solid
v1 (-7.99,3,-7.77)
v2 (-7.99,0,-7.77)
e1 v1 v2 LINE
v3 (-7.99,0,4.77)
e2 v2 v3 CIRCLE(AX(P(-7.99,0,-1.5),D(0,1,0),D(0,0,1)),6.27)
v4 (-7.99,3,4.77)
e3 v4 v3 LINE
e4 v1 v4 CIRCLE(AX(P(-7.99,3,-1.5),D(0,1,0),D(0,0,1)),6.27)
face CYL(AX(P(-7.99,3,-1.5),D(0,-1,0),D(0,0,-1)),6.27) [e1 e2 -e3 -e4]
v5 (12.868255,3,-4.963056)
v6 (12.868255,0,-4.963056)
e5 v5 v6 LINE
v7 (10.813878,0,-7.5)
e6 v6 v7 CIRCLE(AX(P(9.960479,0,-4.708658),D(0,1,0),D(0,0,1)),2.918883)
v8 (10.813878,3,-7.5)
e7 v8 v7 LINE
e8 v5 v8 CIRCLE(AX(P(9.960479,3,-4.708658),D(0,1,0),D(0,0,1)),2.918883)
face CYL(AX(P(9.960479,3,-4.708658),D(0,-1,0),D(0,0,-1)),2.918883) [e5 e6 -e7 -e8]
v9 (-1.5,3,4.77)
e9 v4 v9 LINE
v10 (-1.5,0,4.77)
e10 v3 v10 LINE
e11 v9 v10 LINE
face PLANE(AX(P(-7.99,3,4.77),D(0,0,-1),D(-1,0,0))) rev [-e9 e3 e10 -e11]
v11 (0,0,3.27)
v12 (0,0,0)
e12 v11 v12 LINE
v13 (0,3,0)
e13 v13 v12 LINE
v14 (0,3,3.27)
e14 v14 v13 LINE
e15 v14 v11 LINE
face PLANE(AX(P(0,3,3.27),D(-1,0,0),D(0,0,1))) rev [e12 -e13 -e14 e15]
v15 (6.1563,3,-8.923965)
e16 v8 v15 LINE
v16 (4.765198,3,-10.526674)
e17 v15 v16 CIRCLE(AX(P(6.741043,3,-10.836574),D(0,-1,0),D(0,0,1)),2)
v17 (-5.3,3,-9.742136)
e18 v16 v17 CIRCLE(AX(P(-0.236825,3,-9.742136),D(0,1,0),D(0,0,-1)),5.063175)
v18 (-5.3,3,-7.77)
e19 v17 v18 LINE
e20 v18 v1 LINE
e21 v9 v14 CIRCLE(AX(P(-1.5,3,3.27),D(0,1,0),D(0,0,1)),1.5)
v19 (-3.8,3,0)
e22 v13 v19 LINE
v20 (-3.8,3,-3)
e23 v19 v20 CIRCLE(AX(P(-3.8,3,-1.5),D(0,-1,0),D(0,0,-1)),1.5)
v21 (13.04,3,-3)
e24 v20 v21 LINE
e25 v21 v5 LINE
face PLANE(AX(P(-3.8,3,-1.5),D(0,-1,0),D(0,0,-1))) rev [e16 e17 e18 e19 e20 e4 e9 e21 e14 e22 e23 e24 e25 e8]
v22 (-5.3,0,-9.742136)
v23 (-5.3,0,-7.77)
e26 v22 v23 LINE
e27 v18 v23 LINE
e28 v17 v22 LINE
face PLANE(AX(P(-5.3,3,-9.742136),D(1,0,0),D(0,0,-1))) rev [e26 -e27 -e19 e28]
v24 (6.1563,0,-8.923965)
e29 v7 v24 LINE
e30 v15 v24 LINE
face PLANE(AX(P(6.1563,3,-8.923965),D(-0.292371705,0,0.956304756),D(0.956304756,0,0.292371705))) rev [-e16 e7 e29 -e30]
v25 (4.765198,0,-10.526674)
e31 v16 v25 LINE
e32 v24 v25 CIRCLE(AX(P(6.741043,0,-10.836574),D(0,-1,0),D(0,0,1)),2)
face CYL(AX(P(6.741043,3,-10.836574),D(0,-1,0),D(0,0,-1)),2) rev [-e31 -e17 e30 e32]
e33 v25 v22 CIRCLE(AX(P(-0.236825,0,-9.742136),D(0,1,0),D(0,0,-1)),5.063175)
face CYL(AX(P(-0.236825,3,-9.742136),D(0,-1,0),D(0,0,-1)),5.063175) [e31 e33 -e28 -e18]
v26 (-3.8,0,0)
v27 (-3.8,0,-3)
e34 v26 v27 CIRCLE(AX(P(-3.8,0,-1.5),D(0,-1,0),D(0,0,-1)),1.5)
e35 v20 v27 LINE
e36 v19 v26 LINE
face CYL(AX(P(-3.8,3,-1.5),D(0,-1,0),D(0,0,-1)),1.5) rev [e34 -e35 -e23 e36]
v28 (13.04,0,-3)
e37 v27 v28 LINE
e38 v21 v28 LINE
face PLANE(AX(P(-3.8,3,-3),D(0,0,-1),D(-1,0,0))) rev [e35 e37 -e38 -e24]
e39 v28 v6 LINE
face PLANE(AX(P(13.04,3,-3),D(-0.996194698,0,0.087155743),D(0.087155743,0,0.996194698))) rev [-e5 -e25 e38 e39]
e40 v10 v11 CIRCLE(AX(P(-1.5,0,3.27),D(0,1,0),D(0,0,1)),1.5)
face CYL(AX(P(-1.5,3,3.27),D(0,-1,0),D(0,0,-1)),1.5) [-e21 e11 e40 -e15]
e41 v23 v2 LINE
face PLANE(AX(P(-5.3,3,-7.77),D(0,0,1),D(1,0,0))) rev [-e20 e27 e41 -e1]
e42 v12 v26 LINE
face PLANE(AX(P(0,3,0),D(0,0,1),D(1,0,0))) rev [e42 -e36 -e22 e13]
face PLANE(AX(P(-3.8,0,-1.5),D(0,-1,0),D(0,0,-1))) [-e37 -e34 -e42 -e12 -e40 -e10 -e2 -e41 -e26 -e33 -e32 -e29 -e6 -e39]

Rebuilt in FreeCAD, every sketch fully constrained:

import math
import FreeCAD as App
import Part
import Sketcher
Q = App.Units.Quantity

doc = App.newDocument("Part")
body = doc.addObject("PartDesign::Body", "Body")

sketch1 = body.newObject("Sketcher::SketchObject", "Sketch")
sketch1.AttachmentSupport = (doc.getObject("XZ_Plane"), [""])
sketch1.MapMode = "FlatFace"
sketch1.addGeometry(Part.LineSegment(App.Vector(0, 0, 0), App.Vector(-3.8, 0, 0)), False)
sketch1.addGeometry(Part.ArcOfCircle(Part.Circle(App.Vector(-3.8, -1.5, 0), App.Vector(0, 0, 1), 1.5), math.radians(90), math.radians(270)), False)
sketch1.addGeometry(Part.LineSegment(App.Vector(-3.8, -3, 0), App.Vector(13.04, -3, 0)), False)
sketch1.addGeometry(Part.LineSegment(App.Vector(13.04, -3, 0), App.Vector(12.868255, -4.963056, 0)), False)
sketch1.addGeometry(Part.ArcOfCircle(Part.Circle(App.Vector(9.960479, -4.708658, 0), App.Vector(0, 0, 1), 2.918883), math.radians(-73), math.radians(-5)), False)
sketch1.addGeometry(Part.LineSegment(App.Vector(10.813878, -7.5, 0), App.Vector(6.1563, -8.923965, 0)), False)
sketch1.addGeometry(Part.ArcOfCircle(Part.Circle(App.Vector(6.741043, -10.836574, 0), App.Vector(0, 0, 1), 2), math.radians(107), math.radians(171.086112)), False)
sketch1.addGeometry(Part.ArcOfCircle(Part.Circle(App.Vector(-0.236825, -9.742136, 0), App.Vector(0, 0, 1), 5.063175), math.radians(180), math.radians(351.086112)), False)
sketch1.addGeometry(Part.LineSegment(App.Vector(-5.3, -9.742136, 0), App.Vector(-5.3, -7.77, 0)), False)
sketch1.addGeometry(Part.LineSegment(App.Vector(-5.3, -7.77, 0), App.Vector(-7.99, -7.77, 0)), False)
sketch1.addGeometry(Part.ArcOfCircle(Part.Circle(App.Vector(-7.99, -1.5, 0), App.Vector(0, 0, 1), 6.27), math.radians(90), math.radians(270)), False)
sketch1.addGeometry(Part.LineSegment(App.Vector(-7.99, 4.77, 0), App.Vector(-1.5, 4.77, 0)), False)
sketch1.addGeometry(Part.ArcOfCircle(Part.Circle(App.Vector(-1.5, 3.27, 0), App.Vector(0, 0, 1), 1.5), math.radians(0), math.radians(90)), False)
sketch1.addGeometry(Part.LineSegment(App.Vector(0, 3.27, 0), App.Vector(0, 0, 0)), False)
sketch1.addConstraint(Sketcher.Constraint("Tangent", 0, 2, 1, 1))
sketch1.addConstraint(Sketcher.Constraint("Tangent", 1, 2, 2, 1))
sketch1.addConstraint(Sketcher.Constraint("Coincident", 2, 2, 3, 1))
sketch1.addConstraint(Sketcher.Constraint("Tangent", 3, 2, 4, 2))
sketch1.addConstraint(Sketcher.Constraint("Tangent", 4, 1, 5, 1))
sketch1.addConstraint(Sketcher.Constraint("Tangent", 5, 2, 6, 1))
sketch1.addConstraint(Sketcher.Constraint("Tangent", 6, 2, 7, 2))
sketch1.addConstraint(Sketcher.Constraint("Tangent", 7, 1, 8, 1))
sketch1.addConstraint(Sketcher.Constraint("Coincident", 8, 2, 9, 1))
sketch1.addConstraint(Sketcher.Constraint("Tangent", 9, 2, 10, 2))
sketch1.addConstraint(Sketcher.Constraint("Tangent", 10, 1, 11, 1))
sketch1.addConstraint(Sketcher.Constraint("Tangent", 11, 2, 12, 2))
sketch1.addConstraint(Sketcher.Constraint("Tangent", 12, 1, 13, 1))
sketch1.addConstraint(Sketcher.Constraint("Coincident", 13, 2, 0, 1))
sketch1.addConstraint(Sketcher.Constraint("Horizontal", 0))
sketch1.addConstraint(Sketcher.Constraint("Horizontal", 2))
sketch1.addConstraint(Sketcher.Constraint("Vertical", 8))
sketch1.addConstraint(Sketcher.Constraint("Horizontal", 9))
sketch1.addConstraint(Sketcher.Constraint("Horizontal", 11))
sketch1.addConstraint(Sketcher.Constraint("Vertical", 13))
sketch1.addConstraint(Sketcher.Constraint("Coincident", 13, 2, -1, 1))
sketch1.addConstraint(Sketcher.Constraint("Equal", 1, 12))
sketch1.addConstraint(Sketcher.Constraint("Horizontal", 1, 3, 10, 3))
sketch1.addConstraint(Sketcher.Constraint("Radius", 6, 2.0))
sketch1.addConstraint(Sketcher.Constraint("Radius", 1, 1.5))
sketch1.addConstraint(Sketcher.Constraint("Angle", 3, Q("-95 deg")))
sketch1.addConstraint(Sketcher.Constraint("Angle", 5, Q("-163 deg")))
sketch1.addConstraint(Sketcher.Constraint("Radius", 10, 6.27))
sketch1.addConstraint(Sketcher.Constraint("DistanceX", 0, 2, 0, 1, 3.8))
sketch1.addConstraint(Sketcher.Constraint("DistanceX", 2, 1, 2, 2, 16.84))
sketch1.addConstraint(Sketcher.Constraint("DistanceX", 9, 2, 9, 1, 2.69))
sketch1.addConstraint(Sketcher.Constraint("DistanceX", 11, 1, 11, 2, 6.49))
sketch1.addConstraint(Sketcher.Constraint("DistanceY", 4, 1, -1, 1, 7.5))
sketch1.addConstraint(Sketcher.Constraint("Radius", 4, 2.918883))
sketch1.addConstraint(Sketcher.Constraint("Radius", 7, 5.063175))
sketch1.addConstraint(Sketcher.Constraint("DistanceX", -1, 1, 5, 2, 6.1563))
pad1 = body.newObject("PartDesign::Pad", "Pad")
pad1.Profile = sketch1
pad1.Length = 3
pad1.Reversed = True

doc.recompute()
